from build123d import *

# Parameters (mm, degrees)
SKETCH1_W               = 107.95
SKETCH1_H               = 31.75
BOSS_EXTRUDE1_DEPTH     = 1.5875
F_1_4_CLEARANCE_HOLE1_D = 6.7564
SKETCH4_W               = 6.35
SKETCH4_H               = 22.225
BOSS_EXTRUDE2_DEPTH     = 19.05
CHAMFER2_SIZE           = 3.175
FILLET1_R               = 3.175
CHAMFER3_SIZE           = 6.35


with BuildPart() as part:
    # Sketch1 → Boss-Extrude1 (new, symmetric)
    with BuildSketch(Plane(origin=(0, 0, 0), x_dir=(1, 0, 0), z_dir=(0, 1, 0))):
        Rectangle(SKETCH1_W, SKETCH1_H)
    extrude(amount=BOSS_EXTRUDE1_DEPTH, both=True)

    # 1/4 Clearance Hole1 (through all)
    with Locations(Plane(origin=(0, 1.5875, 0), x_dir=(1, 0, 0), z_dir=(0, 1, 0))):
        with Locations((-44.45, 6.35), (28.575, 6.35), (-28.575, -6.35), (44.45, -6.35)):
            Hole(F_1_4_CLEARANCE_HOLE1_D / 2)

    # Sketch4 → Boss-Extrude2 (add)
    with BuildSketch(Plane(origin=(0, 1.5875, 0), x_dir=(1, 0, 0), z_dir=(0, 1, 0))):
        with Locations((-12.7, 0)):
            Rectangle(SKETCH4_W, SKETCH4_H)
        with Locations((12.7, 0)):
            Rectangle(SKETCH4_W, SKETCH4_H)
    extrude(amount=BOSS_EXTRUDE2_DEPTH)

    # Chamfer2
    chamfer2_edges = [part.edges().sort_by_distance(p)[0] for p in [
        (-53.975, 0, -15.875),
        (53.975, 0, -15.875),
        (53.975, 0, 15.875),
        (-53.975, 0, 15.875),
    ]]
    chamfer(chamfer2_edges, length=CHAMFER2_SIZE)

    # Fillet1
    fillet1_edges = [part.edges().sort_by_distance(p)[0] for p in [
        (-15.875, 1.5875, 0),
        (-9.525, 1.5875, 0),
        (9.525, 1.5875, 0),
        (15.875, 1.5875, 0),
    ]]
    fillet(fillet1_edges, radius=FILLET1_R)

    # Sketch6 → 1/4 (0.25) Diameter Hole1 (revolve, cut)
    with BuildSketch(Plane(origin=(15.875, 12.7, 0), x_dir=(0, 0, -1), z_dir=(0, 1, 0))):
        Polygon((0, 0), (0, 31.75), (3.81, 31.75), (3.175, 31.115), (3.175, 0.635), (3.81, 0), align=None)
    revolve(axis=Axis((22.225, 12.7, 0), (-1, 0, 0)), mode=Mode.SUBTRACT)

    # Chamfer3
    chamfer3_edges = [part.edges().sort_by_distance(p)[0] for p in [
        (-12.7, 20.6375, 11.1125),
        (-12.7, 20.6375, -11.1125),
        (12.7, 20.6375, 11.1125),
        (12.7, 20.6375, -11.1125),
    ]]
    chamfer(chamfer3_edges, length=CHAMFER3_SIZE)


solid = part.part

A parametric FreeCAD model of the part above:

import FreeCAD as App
import Part
import Sketcher
from FreeCAD import Vector
Q = App.Units.Quantity


def edges_at(feature, points):
    """Names of the edges that pass closest to the given points."""
    edges = feature.Shape.Edges
    near = lambda p: min(range(len(edges)), key=lambda i: edges[i].distToShape(Part.Vertex(*p))[0])
    return sorted({f"Edge{near(p) + 1}" for p in points})

doc = App.newDocument("Part")
body = doc.addObject("PartDesign::Body", "Body")

# Sketch on XZ plane
sketch1 = body.newObject("Sketcher::SketchObject", "Sketch")
sketch1.AttachmentSupport = (doc.getObject("XZ_Plane"), [""])
sketch1.MapMode = "FlatFace"
sketch1.addGeometry([
    Part.LineSegment(Vector(-54, -16, 0), Vector(-54, 16, 0)),
    Part.LineSegment(Vector(-54, 16, 0), Vector(54, 16, 0)),
    Part.LineSegment(Vector(54, 16, 0), Vector(54, -16, 0)),
    Part.LineSegment(Vector(54, -16, 0), Vector(-54, -16, 0)),
], False)
sketch1.addConstraint([
    Sketcher.Constraint("Coincident", 0, 2, 1, 1),
    Sketcher.Constraint("Coincident", 1, 2, 2, 1),
    Sketcher.Constraint("Coincident", 2, 2, 3, 1),
    Sketcher.Constraint("Coincident", 3, 2, 0, 1),
    Sketcher.Constraint("Vertical", 0),
    Sketcher.Constraint("Horizontal", 1),
    Sketcher.Constraint("Vertical", 2),
    Sketcher.Constraint("Horizontal", 3),
    Sketcher.Constraint("Symmetric", 0, 2, 2, 2, -1, 1),
    Sketcher.Constraint("DistanceX", 1, 1, 1, 2, Q("4.25 in")),
    Sketcher.Constraint("DistanceY", 0, 1, 0, 2, Q("1.25 in")),
])
pad1 = body.newObject("PartDesign::Pad", "Pad")
pad1.Profile = sketch1
pad1.Length = Q("0.125 in")
pad1.Midplane = True

# Sketch on XZ plane
sketch2 = body.newObject("Sketcher::SketchObject", "Sketch001")
sketch2.AttachmentSupport = (doc.getObject("XZ_Plane"), [""])
sketch2.MapMode = "FlatFace"
sketch2.AttachmentOffset = App.Placement(Vector(0, 0, -0.0625 * 25.4), App.Rotation())
sketch2.addGeometry([
    Part.Circle(Vector(-44.5, -6.3, 0), Vector(0, 0, 1), 3.4),
    Part.Circle(Vector(28.6, -6.3, 0), Vector(0, 0, 1), 3.4),
    Part.Circle(Vector(-28.6, 6.3, 0), Vector(0, 0, 1), 3.4),
    Part.Circle(Vector(44.5, 6.3, 0), Vector(0, 0, 1), 3.4),
], False)
sketch2.addConstraint([
    Sketcher.Constraint("Equal", 0, 1),
    Sketcher.Constraint("Equal", 1, 2),
    Sketcher.Constraint("Equal", 2, 3),
    Sketcher.Constraint("Symmetric", 1, 3, 2, 3, -1, 1),
    Sketcher.Constraint("Symmetric", 0, 3, 3, 3, -1, 1),
    Sketcher.Constraint("Horizontal", 0, 3, 1, 3),
    Sketcher.Constraint("Diameter", 0, Q("0.266 in")),
    Sketcher.Constraint("DistanceY", 0, 3, 2, 3, Q("0.5 in")),
    Sketcher.Constraint("DistanceX", 0, 3, 3, 3, Q("3.5 in")),
    Sketcher.Constraint("DistanceX", 2, 3, 1, 3, Q("2.25 in")),
])
doc.recompute()
hole = body.newObject("PartDesign::Hole", "Hole")
hole.Profile = sketch2
hole.ThreadType = "None"
hole.Diameter = Q("0.266 in")
hole.DepthType = "ThroughAll"
hole.Reversed = True

# Sketch on XZ plane
sketch3 = body.newObject("Sketcher::SketchObject", "Sketch002")
sketch3.AttachmentSupport = (doc.getObject("XZ_Plane"), [""])
sketch3.MapMode = "FlatFace"
sketch3.AttachmentOffset = App.Placement(Vector(0, 0, -0.0625 * 25.4), App.Rotation())
sketch3.addGeometry([
    Part.LineSegment(Vector(-16, -11, 0), Vector(-16, 11, 0)),  # 0
    Part.LineSegment(Vector(-16, 11, 0), Vector(-10, 11, 0)),  # 1
    Part.LineSegment(Vector(-10, 11, 0), Vector(-10, -11, 0)),  # 2
    Part.LineSegment(Vector(-10, -11, 0), Vector(-16, -11, 0)),  # 3
    Part.LineSegment(Vector(10, -11, 0), Vector(10, 11, 0)),  # 4
    Part.LineSegment(Vector(10, 11, 0), Vector(16, 11, 0)),  # 5
    Part.LineSegment(Vector(16, 11, 0), Vector(16, -11, 0)),  # 6
    Part.LineSegment(Vector(16, -11, 0), Vector(10, -11, 0)),  # 7
], False)
sketch3.addConstraint([
    Sketcher.Constraint("Coincident", 0, 2, 1, 1),
    Sketcher.Constraint("Coincident", 1, 2, 2, 1),
    Sketcher.Constraint("Coincident", 2, 2, 3, 1),
    Sketcher.Constraint("Coincident", 3, 2, 0, 1),
    Sketcher.Constraint("Coincident", 4, 2, 5, 1),
    Sketcher.Constraint("Coincident", 5, 2, 6, 1),
    Sketcher.Constraint("Coincident", 6, 2, 7, 1),
    Sketcher.Constraint("Coincident", 7, 2, 4, 1),
    Sketcher.Constraint("Vertical", 0),
    Sketcher.Constraint("Horizontal", 1),
    Sketcher.Constraint("Vertical", 2),
    Sketcher.Constraint("Horizontal", 3),
    Sketcher.Constraint("Vertical", 4),
    Sketcher.Constraint("Horizontal", 5),
    Sketcher.Constraint("Vertical", 6),
    Sketcher.Constraint("Horizontal", 7),
    Sketcher.Constraint("Symmetric", 2, 2, 4, 2, -1, 1),
    Sketcher.Constraint("Symmetric", 0, 2, 6, 2, -1, 1),
    Sketcher.Constraint("Horizontal", 1, 2, 4, 2),
    Sketcher.Constraint("DistanceX", 0, 2, 4, 2, Q("1 in")),
    Sketcher.Constraint("DistanceX", 1, 1, 1, 2, Q("0.25 in")),
    Sketcher.Constraint("DistanceY", 0, 1, 0, 2, Q("0.875 in")),
])
pad2 = body.newObject("PartDesign::Pad", "Pad001")
pad2.Profile = sketch3
pad2.Length = Q("0.75 in")
pad2.Reversed = True
doc.recompute()

chamfer = body.newObject("PartDesign::Chamfer", "Chamfer")
chamfer.Base = (pad2, edges_at(pad2, [
    (-53.975, 0, -15.875),
    (53.975, 0, -15.875),
    (53.975, 0, 15.875),
    (-53.975, 0, 15.875),
]))
chamfer.Size = Q("0.125 in")
doc.recompute()

fillet = body.newObject("PartDesign::Fillet", "Fillet")
fillet.Base = (chamfer, edges_at(chamfer, [
    (-15.875, 1.587, 0),
    (-9.525, 1.587, 0),
    (9.525, 1.587, 0),
    (15.875, 1.587, 0),
]))
fillet.Radius = Q("0.125 in")

# Sketch on XZ plane
sketch4 = body.newObject("Sketcher::SketchObject", "Sketch003")
sketch4.AttachmentSupport = (doc.getObject("XZ_Plane"), [""])
sketch4.MapMode = "FlatFace"
sketch4.AttachmentOffset = App.Placement(Vector(0, 0, -0.5 * 25.4), App.Rotation())
sketch4.addGeometry([
    Part.LineSegment(Vector(-15.9, 0, 0), Vector(15.9, 0, 0)),  # 0
    Part.LineSegment(Vector(15.9, 0, 0), Vector(15.9, -3.8, 0)),  # 1
    Part.LineSegment(Vector(15.9, -3.8, 0), Vector(15.2, -3.2, 0)),  # 2
    Part.LineSegment(Vector(15.2, -3.2, 0), Vector(-15.2, -3.2, 0)),  # 3
    Part.LineSegment(Vector(-15.2, -3.2, 0), Vector(-15.9, -3.8, 0)),  # 4
    Part.LineSegment(Vector(-15.9, -3.8, 0), Vector(-15.9, 0, 0)),  # 5
], False)
sketch4.addConstraint([
    Sketcher.Constraint("Coincident", 0, 2, 1, 1),
    Sketcher.Constraint("Coincident", 1, 2, 2, 1),
    Sketcher.Constraint("Coincident", 2, 2, 3, 1),
    Sketcher.Constraint("Coincident", 3, 2, 4, 1),
    Sketcher.Constraint("Coincident", 4, 2, 5, 1),
    Sketcher.Constraint("Coincident", 5, 2, 0, 1),
    Sketcher.Constraint("Horizontal", 0),
    Sketcher.Constraint("Vertical", 1),
    Sketcher.Constraint("Horizontal", 3),
    Sketcher.Constraint("Vertical", 5),
    Sketcher.Constraint("Symmetric", 0, 2, 5, 2, -1, 1),
    Sketcher.Constraint("Perpendicular", 2, 4),
    Sketcher.Constraint("Horizontal", 1, 2, 4, 2),
    Sketcher.Constraint("Equal", 2, 4),
    Sketcher.Constraint("DistanceX", 3, 2, 3, 1, Q("1.2 in")),
    Sketcher.Constraint("DistanceX", 0, 1, 0, 2, Q("1.25 in")),
    Sketcher.Constraint("DistanceY", 1, 2, 1, 1, Q("0.15 in")),
])
groove = body.newObject("PartDesign::Groove", "Groove")
groove.Profile = sketch4
groove.ReferenceAxis = (sketch4, ["H_Axis"])
groove.Angle = 360
doc.recompute()

chamfer2 = body.newObject("PartDesign::Chamfer", "Chamfer001")
chamfer2.Base = (groove, edges_at(groove, [
    (-12.7, 20.637, 11.113),
    (-12.7, 20.637, -11.113),
    (12.7, 20.637, 11.113),
    (12.7, 20.637, -11.113),
]))
chamfer2.Size = Q("0.25 in")

doc.recompute()
